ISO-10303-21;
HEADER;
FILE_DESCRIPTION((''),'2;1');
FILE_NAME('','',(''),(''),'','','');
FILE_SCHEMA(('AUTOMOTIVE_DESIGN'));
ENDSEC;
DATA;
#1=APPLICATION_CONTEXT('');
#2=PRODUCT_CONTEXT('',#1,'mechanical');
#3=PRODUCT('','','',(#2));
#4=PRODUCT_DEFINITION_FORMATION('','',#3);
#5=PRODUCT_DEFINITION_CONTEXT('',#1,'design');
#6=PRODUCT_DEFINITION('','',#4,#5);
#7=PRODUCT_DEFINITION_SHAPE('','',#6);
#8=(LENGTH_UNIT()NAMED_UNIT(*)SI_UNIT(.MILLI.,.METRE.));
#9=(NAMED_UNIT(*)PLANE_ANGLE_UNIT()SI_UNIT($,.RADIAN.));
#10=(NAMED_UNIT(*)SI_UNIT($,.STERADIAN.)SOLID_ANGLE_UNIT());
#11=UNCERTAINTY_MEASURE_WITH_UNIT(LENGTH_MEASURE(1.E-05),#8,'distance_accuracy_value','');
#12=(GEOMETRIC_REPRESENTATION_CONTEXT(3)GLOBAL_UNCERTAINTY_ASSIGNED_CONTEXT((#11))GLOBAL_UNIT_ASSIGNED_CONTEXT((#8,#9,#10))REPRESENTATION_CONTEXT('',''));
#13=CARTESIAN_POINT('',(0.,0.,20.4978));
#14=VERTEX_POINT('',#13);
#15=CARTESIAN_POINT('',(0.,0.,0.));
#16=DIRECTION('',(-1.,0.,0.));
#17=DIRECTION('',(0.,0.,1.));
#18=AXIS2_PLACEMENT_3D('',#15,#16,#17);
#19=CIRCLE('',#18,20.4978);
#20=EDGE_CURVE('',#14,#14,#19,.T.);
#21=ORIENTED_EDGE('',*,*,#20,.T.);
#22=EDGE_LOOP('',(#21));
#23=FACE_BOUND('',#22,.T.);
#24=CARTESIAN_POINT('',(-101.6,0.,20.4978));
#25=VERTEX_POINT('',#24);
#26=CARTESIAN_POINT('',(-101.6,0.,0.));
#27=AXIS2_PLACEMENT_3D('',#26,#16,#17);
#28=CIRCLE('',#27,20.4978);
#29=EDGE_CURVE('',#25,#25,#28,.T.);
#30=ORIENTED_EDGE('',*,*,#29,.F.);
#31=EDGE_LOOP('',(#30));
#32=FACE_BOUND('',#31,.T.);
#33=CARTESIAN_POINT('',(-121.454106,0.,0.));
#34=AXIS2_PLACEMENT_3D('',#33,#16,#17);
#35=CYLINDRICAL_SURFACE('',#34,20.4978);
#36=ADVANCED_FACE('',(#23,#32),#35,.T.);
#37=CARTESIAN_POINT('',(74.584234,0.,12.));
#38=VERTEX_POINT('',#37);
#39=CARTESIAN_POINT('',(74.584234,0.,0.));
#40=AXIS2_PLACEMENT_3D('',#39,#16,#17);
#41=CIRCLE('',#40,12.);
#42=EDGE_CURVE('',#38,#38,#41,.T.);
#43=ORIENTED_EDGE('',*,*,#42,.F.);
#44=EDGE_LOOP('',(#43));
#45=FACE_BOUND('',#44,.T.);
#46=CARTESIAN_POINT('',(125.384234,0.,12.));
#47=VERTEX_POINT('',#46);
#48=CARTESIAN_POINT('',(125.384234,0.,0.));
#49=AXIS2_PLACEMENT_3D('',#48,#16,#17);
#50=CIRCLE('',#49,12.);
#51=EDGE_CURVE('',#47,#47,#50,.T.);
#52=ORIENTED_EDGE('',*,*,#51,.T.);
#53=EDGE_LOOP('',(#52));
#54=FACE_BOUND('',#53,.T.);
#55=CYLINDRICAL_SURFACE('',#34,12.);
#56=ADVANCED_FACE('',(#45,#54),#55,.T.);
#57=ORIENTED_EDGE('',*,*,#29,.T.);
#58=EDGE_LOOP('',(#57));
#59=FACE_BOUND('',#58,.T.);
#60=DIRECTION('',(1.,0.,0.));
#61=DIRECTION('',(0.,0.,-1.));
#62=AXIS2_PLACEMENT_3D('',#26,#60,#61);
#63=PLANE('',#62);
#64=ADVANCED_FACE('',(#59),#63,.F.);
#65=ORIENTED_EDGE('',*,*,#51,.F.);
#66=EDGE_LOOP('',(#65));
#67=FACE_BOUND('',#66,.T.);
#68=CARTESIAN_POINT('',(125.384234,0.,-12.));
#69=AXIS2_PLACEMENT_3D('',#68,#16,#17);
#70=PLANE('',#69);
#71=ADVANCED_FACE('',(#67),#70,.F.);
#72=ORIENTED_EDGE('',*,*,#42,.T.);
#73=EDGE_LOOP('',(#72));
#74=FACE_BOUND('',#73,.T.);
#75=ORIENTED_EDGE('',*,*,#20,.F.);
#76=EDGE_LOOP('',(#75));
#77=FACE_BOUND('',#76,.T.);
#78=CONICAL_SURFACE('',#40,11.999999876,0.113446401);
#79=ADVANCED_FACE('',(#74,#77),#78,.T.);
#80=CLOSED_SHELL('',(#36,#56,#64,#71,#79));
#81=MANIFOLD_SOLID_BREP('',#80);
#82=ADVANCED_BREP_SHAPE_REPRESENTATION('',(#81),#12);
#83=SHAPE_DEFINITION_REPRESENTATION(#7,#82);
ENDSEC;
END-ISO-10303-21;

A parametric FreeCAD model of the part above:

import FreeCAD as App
import Part
import Sketcher
from FreeCAD import Vector
Q = App.Units.Quantity

doc = App.newDocument("Part")
body = doc.addObject("PartDesign::Body", "Body")

# Sketch on XZ plane
sketch1 = doc.addObject("Sketcher::SketchObject", "Sketch")
body.addObject(sketch1)
sketch1.AttachmentSupport = (doc.XZ_Plane, [""])
sketch1.MapMode = "FlatFace"
sketch1.addGeometry([
    Part.LineSegment(Vector(0, -20, 0), Vector(-102, -20, 0)),  # 0
    Part.LineSegment(Vector(-102, -20, 0), Vector(-102, 0, 0)),  # 1
    Part.LineSegment(Vector(-102, 0, 0), Vector(125, 0, 0)),  # 2
    Part.LineSegment(Vector(125, 0, 0), Vector(125, -12, 0)),  # 3
    Part.LineSegment(Vector(125, -12, 0), Vector(75, -12, 0)),  # 4
    Part.LineSegment(Vector(75, -12, 0), Vector(0, -20, 0)),  # 5
], False)
sketch1.addConstraint([
    Sketcher.Constraint("Coincident", 0, 2, 1, 1),
    Sketcher.Constraint("Coincident", 1, 2, 2, 1),
    Sketcher.Constraint("Coincident", 2, 2, 3, 1),
    Sketcher.Constraint("Coincident", 3, 2, 4, 1),
    Sketcher.Constraint("Coincident", 4, 2, 5, 1),
    Sketcher.Constraint("Coincident", 5, 2, 0, 1),
    Sketcher.Constraint("Horizontal", 0),
    Sketcher.Constraint("Vertical", 1),
    Sketcher.Constraint("Horizontal", 2),
    Sketcher.Constraint("Vertical", 3),
    Sketcher.Constraint("Horizontal", 4),
    Sketcher.Constraint("PointOnObject", 1, 2, -1),
    Sketcher.Constraint("PointOnObject", 5, 2, -2),
    Sketcher.Constraint("DistanceX", 0, 2, 0, 1, Q("4 in")),
    Sketcher.Constraint("DistanceX", 4, 2, 4, 1, Q("2 in")),
    Sketcher.Constraint("Angle", 5, Q("-173.5 deg")),
    Sketcher.Constraint("DistanceY", 1, 1, 1, 2, Q("0.807 in")),
    Sketcher.Constraint("DistanceY", 3, 2, 3, 1, Q("12 mm")),
])
revolution = doc.addObject("PartDesign::Revolution", "Revolution")
body.addObject(revolution)
revolution.Profile = sketch1
revolution.ReferenceAxis = (sketch1, ["H_Axis"])
revolution.Angle = 360

doc.recompute()
